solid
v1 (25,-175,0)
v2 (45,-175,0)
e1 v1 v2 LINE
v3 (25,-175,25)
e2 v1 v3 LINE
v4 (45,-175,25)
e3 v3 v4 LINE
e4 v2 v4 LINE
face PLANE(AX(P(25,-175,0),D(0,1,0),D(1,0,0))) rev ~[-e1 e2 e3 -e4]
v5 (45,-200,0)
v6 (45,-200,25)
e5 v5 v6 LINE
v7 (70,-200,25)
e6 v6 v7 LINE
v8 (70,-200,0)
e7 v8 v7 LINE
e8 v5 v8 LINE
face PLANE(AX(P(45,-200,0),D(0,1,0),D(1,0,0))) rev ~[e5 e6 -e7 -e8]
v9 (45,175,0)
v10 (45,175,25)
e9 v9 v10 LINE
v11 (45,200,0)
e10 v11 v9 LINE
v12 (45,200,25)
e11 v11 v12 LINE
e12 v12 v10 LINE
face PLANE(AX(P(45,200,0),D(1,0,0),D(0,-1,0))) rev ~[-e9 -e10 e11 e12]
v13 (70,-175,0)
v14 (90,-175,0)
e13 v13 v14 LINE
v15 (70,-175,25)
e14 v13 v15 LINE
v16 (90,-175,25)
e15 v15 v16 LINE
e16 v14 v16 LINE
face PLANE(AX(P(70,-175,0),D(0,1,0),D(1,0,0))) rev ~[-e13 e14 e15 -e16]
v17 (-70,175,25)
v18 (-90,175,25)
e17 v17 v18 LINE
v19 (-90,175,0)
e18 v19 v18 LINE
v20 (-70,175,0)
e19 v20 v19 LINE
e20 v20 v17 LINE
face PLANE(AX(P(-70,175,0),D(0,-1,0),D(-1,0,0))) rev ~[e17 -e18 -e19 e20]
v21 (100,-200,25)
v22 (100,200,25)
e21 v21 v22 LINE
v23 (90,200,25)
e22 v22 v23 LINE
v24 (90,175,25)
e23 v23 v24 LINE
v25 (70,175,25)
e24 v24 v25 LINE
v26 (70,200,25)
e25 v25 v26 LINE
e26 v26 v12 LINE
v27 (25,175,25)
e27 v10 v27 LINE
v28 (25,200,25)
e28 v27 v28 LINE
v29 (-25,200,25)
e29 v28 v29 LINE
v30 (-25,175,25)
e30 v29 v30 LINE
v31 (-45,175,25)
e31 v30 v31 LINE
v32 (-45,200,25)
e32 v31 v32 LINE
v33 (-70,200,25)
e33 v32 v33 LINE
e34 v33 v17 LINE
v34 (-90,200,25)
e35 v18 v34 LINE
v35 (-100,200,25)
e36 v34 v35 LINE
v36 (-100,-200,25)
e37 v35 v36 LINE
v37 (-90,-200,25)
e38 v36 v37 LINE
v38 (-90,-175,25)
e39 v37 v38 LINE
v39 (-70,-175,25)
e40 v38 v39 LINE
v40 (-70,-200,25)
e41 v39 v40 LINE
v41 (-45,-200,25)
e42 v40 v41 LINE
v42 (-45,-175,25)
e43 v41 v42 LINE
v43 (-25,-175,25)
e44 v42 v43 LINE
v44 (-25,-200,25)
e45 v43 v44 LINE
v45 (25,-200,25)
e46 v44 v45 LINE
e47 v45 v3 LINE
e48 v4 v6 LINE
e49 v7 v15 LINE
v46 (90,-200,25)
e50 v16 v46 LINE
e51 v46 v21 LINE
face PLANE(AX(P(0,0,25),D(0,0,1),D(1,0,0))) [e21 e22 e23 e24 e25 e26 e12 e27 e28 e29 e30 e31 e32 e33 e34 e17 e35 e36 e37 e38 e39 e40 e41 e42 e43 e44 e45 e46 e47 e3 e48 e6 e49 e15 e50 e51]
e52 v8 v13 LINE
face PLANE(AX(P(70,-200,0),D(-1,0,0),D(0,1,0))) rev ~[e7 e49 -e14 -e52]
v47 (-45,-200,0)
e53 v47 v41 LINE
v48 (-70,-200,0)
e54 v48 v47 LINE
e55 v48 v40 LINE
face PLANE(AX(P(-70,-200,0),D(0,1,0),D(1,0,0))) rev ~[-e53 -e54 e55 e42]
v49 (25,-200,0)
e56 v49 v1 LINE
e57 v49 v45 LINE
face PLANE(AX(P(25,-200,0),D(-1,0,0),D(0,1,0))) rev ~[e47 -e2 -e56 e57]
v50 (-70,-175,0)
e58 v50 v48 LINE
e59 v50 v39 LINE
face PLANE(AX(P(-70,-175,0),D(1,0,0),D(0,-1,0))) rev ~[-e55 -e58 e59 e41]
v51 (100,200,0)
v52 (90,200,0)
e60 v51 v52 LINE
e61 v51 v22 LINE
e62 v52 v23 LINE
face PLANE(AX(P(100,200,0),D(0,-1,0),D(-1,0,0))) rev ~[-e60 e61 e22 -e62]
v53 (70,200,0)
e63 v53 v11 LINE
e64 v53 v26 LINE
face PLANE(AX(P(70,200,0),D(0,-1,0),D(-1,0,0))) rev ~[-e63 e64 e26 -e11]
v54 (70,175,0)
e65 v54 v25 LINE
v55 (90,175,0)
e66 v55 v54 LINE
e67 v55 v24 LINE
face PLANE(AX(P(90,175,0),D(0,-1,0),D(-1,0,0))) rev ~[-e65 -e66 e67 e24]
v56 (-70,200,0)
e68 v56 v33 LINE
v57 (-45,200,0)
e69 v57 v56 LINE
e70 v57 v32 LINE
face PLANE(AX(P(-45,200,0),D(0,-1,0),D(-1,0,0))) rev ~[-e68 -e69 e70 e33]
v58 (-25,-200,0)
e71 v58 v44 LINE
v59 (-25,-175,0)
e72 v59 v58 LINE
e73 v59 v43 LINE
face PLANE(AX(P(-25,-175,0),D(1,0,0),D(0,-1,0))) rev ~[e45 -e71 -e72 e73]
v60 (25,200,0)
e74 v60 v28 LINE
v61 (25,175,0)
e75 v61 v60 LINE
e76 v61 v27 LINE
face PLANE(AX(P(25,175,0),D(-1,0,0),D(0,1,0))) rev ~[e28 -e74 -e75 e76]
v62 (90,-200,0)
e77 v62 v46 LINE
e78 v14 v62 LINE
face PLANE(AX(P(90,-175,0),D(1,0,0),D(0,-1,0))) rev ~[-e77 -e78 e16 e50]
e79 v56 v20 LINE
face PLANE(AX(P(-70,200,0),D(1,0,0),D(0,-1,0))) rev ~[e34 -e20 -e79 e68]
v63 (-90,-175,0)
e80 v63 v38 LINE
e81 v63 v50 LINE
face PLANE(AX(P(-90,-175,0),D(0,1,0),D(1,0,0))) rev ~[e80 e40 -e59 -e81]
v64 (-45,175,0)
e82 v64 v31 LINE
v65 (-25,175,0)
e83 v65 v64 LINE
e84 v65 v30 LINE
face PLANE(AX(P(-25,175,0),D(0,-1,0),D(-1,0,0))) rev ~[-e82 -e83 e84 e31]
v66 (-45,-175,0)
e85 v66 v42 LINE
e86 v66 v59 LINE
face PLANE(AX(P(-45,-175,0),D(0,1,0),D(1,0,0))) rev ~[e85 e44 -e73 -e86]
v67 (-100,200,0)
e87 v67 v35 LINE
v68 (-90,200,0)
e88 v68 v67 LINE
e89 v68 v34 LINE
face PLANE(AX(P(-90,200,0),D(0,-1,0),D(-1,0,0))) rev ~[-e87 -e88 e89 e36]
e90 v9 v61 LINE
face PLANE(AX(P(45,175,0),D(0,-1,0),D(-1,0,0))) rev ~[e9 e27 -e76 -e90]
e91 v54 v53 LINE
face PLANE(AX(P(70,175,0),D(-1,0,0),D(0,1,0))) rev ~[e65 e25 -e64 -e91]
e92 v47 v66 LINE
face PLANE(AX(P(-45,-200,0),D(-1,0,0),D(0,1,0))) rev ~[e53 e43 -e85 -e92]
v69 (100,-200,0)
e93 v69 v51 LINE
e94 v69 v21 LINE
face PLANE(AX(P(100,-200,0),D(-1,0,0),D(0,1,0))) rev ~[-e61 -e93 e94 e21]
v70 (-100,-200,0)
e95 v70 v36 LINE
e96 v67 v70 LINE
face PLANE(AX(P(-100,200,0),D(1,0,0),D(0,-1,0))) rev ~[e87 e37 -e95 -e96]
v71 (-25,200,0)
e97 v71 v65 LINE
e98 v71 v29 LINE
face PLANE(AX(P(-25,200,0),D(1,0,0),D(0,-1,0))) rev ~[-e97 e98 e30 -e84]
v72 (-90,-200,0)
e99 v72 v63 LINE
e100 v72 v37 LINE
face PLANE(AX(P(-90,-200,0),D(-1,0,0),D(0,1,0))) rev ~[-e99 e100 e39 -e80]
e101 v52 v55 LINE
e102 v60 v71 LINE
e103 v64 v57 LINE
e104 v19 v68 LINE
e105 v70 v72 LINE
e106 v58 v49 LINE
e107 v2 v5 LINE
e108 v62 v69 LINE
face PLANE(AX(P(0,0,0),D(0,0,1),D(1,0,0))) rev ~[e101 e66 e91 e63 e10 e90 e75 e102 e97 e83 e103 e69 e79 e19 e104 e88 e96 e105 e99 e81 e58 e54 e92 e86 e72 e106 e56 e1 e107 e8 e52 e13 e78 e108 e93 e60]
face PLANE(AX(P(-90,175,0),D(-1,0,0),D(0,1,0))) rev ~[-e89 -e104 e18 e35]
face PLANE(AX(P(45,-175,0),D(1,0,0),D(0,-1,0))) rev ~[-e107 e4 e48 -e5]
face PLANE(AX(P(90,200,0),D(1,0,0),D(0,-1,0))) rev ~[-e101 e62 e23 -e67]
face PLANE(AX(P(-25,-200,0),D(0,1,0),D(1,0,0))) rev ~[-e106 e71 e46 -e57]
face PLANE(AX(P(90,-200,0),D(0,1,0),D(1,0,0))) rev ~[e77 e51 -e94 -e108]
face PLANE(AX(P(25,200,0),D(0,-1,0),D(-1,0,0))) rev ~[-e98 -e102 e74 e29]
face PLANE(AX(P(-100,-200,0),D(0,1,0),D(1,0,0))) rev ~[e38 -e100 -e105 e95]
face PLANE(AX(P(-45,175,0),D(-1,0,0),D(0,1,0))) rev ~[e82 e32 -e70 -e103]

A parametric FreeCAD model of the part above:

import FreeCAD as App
import Part
import Sketcher

V = App.Vector
Q = App.Units.Quantity

doc = App.newDocument("Part")
params = doc.addObject("Spreadsheet::Sheet", "Params")
for row, (alias, value) in enumerate([
    ("sketch1_width", "10 mm"),
    ("sketch1_width2", "20 mm"),
    ("sketch1_width3", "25 mm"),
    ("sketch1_width4", "50 mm"),
    ("sketch1_height", "400 mm"),
    ("pad1_length", "25 mm"),
], start=1):
    params.set(f"A{row}", alias)
    params.set(f"B{row}", "=" + value)
    params.setAlias(f"B{row}", alias)

body = doc.addObject("PartDesign::Body", "Body")

# Sketch on XY plane
sketch1 = body.newObject("Sketcher::SketchObject", "Sketch")
sketch1.AttachmentSupport = (doc.getObject("XY_Plane"), [""])
sketch1.MapMode = "FlatFace"
sketch1.addGeometry([
    Part.LineSegment(V(90, -200, 0), V(100, -200, 0)),  # 0
    Part.LineSegment(V(100, -200, 0), V(100, 200, 0)),  # 1
    Part.LineSegment(V(100, 200, 0), V(90, 200, 0)),  # 2
    Part.LineSegment(V(90, 200, 0), V(90, 175, 0)),  # 3
    Part.LineSegment(V(90, 175, 0), V(70, 175, 0)),  # 4
    Part.LineSegment(V(70, 175, 0), V(70, 200, 0)),  # 5
    Part.LineSegment(V(70, 200, 0), V(45, 200, 0)),  # 6
    Part.LineSegment(V(45, 200, 0), V(45, 175, 0)),  # 7
    Part.LineSegment(V(45, 175, 0), V(25, 175, 0)),  # 8
    Part.LineSegment(V(25, 175, 0), V(25, 200, 0)),  # 9
    Part.LineSegment(V(25, 200, 0), V(-25, 200, 0)),  # 10
    Part.LineSegment(V(-25, 200, 0), V(-25, 175, 0)),  # 11
    Part.LineSegment(V(-25, 175, 0), V(-45, 175, 0)),  # 12
    Part.LineSegment(V(-45, 175, 0), V(-45, 200, 0)),  # 13
    Part.LineSegment(V(-45, 200, 0), V(-70, 200, 0)),  # 14
    Part.LineSegment(V(-70, 200, 0), V(-70, 175, 0)),  # 15
    Part.LineSegment(V(-70, 175, 0), V(-90, 175, 0)),  # 16
    Part.LineSegment(V(-90, 175, 0), V(-90, 200, 0)),  # 17
    Part.LineSegment(V(-90, 200, 0), V(-100, 200, 0)),  # 18
    Part.LineSegment(V(-100, 200, 0), V(-100, -200, 0)),  # 19
    Part.LineSegment(V(-100, -200, 0), V(-90, -200, 0)),  # 20
    Part.LineSegment(V(-90, -200, 0), V(-90, -175, 0)),  # 21
    Part.LineSegment(V(-90, -175, 0), V(-70, -175, 0)),  # 22
    Part.LineSegment(V(-70, -175, 0), V(-70, -200, 0)),  # 23
    Part.LineSegment(V(-70, -200, 0), V(-45, -200, 0)),  # 24
    Part.LineSegment(V(-45, -200, 0), V(-45, -175, 0)),  # 25
    Part.LineSegment(V(-45, -175, 0), V(-25, -175, 0)),  # 26
    Part.LineSegment(V(-25, -175, 0), V(-25, -200, 0)),  # 27
    Part.LineSegment(V(-25, -200, 0), V(25, -200, 0)),  # 28
    Part.LineSegment(V(25, -200, 0), V(25, -175, 0)),  # 29
    Part.LineSegment(V(25, -175, 0), V(45, -175, 0)),  # 30
    Part.LineSegment(V(45, -175, 0), V(45, -200, 0)),  # 31
    Part.LineSegment(V(45, -200, 0), V(70, -200, 0)),  # 32
    Part.LineSegment(V(70, -200, 0), V(70, -175, 0)),  # 33
    Part.LineSegment(V(70, -175, 0), V(90, -175, 0)),  # 34
    Part.LineSegment(V(90, -175, 0), V(90, -200, 0)),  # 35
], False)
sketch1.addConstraint([
    Sketcher.Constraint("Coincident", 0, 2, 1, 1),
    Sketcher.Constraint("Coincident", 1, 2, 2, 1),
    Sketcher.Constraint("Coincident", 2, 2, 3, 1),
    Sketcher.Constraint("Coincident", 3, 2, 4, 1),
    Sketcher.Constraint("Coincident", 4, 2, 5, 1),
    Sketcher.Constraint("Coincident", 5, 2, 6, 1),
    Sketcher.Constraint("Coincident", 6, 2, 7, 1),
    Sketcher.Constraint("Coincident", 7, 2, 8, 1),
    Sketcher.Constraint("Coincident", 8, 2, 9, 1),
    Sketcher.Constraint("Coincident", 9, 2, 10, 1),
    Sketcher.Constraint("Coincident", 10, 2, 11, 1),
    Sketcher.Constraint("Coincident", 11, 2, 12, 1),
    Sketcher.Constraint("Coincident", 12, 2, 13, 1),
    Sketcher.Constraint("Coincident", 13, 2, 14, 1),
    Sketcher.Constraint("Coincident", 14, 2, 15, 1),
    Sketcher.Constraint("Coincident", 15, 2, 16, 1),
    Sketcher.Constraint("Coincident", 16, 2, 17, 1),
    Sketcher.Constraint("Coincident", 17, 2, 18, 1),
    Sketcher.Constraint("Coincident", 18, 2, 19, 1),
    Sketcher.Constraint("Coincident", 19, 2, 20, 1),
    Sketcher.Constraint("Coincident", 20, 2, 21, 1),
    Sketcher.Constraint("Coincident", 21, 2, 22, 1),
    Sketcher.Constraint("Coincident", 22, 2, 23, 1),
    Sketcher.Constraint("Coincident", 23, 2, 24, 1),
    Sketcher.Constraint("Coincident", 24, 2, 25, 1),
    Sketcher.Constraint("Coincident", 25, 2, 26, 1),
    Sketcher.Constraint("Coincident", 26, 2, 27, 1),
    Sketcher.Constraint("Coincident", 27, 2, 28, 1),
    Sketcher.Constraint("Coincident", 28, 2, 29, 1),
    Sketcher.Constraint("Coincident", 29, 2, 30, 1),
    Sketcher.Constraint("Coincident", 30, 2, 31, 1),
    Sketcher.Constraint("Coincident", 31, 2, 32, 1),
    Sketcher.Constraint("Coincident", 32, 2, 33, 1),
    Sketcher.Constraint("Coincident", 33, 2, 34, 1),
    Sketcher.Constraint("Coincident", 34, 2, 35, 1),
    Sketcher.Constraint("Coincident", 35, 2, 0, 1),
    Sketcher.Constraint("Horizontal", 0),
    Sketcher.Constraint("Vertical", 1),
    Sketcher.Constraint("Horizontal", 2),
    Sketcher.Constraint("Vertical", 3),
    Sketcher.Constraint("Horizontal", 4),
    Sketcher.Constraint("Vertical", 5),
    Sketcher.Constraint("Horizontal", 6),
    Sketcher.Constraint("Vertical", 7),
    Sketcher.Constraint("Horizontal", 8),
    Sketcher.Constraint("Vertical", 9),
    Sketcher.Constraint("Horizontal", 10),
    Sketcher.Constraint("Vertical", 11),
    Sketcher.Constraint("Horizontal", 12),
    Sketcher.Constraint("Vertical", 13),
    Sketcher.Constraint("Horizontal", 14),
    Sketcher.Constraint("Vertical", 15),
    Sketcher.Constraint("Horizontal", 16),
    Sketcher.Constraint("Vertical", 17),
    Sketcher.Constraint("Horizontal", 18),
    Sketcher.Constraint("Vertical", 19),
    Sketcher.Constraint("Horizontal", 20),
    Sketcher.Constraint("Vertical", 21),
    Sketcher.Constraint("Horizontal", 22),
    Sketcher.Constraint("Vertical", 23),
    Sketcher.Constraint("Horizontal", 24),
    Sketcher.Constraint("Vertical", 25),
    Sketcher.Constraint("Horizontal", 26),
    Sketcher.Constraint("Vertical", 27),
    Sketcher.Constraint("Horizontal", 28),
    Sketcher.Constraint("Vertical", 29),
    Sketcher.Constraint("Horizontal", 30),
    Sketcher.Constraint("Vertical", 31),
    Sketcher.Constraint("Horizontal", 32),
    Sketcher.Constraint("Vertical", 33),
    Sketcher.Constraint("Horizontal", 34),
    Sketcher.Constraint("Vertical", 35),
    Sketcher.Constraint("Symmetric", 0, 2, 18, 2, -1, 1),
    Sketcher.Constraint("Symmetric", 2, 2, 20, 2, -1, 1),
    Sketcher.Constraint("Symmetric", 4, 2, 22, 2, -1, 1),
    Sketcher.Constraint("Symmetric", 6, 2, 24, 2, -1, 1),
    Sketcher.Constraint("Symmetric", 8, 2, 26, 2, -1, 1),
    Sketcher.Constraint("Symmetric", 10, 2, 28, 2, -1, 1),
    Sketcher.Constraint("Symmetric", 12, 2, 30, 2, -1, 1),
    Sketcher.Constraint("Symmetric", 14, 2, 32, 2, -1, 1),
    Sketcher.Constraint("Symmetric", 16, 2, 34, 2, -1, 1),
    Sketcher.Constraint("Symmetric", 8, 2, 11, 2, -2),
    Sketcher.Constraint("Symmetric", 6, 2, 13, 2, -2),
    Sketcher.Constraint("Symmetric", 4, 2, 15, 2, -2),
    Sketcher.Constraint("Symmetric", 2, 2, 17, 2, -2),
    Sketcher.Constraint("Horizontal", 2, 2, 5, 2),
    Sketcher.Constraint("Horizontal", 4, 2, 7, 2),
    Sketcher.Constraint("Horizontal", 6, 2, 9, 2),
    Sketcher.Constraint("Equal", 4, 8),
    Sketcher.Constraint("Equal", 32, 3),
    Sketcher.Constraint("DistanceX", 0, 1, 0, 2, Q("10 mm")),
    Sketcher.Constraint("DistanceX", 4, 2, 4, 1, Q("20 mm")),
    Sketcher.Constraint("DistanceX", 6, 2, 6, 1, Q("25 mm")),
    Sketcher.Constraint("DistanceX", 10, 2, 10, 1, Q("50 mm")),
    Sketcher.Constraint("DistanceY", 1, 1, 1, 2, Q("400 mm")),
])
sketch1.setExpression("Constraints[90]", "Params.sketch1_width")
sketch1.setExpression("Constraints[91]", "Params.sketch1_width2")
sketch1.setExpression("Constraints[92]", "Params.sketch1_width3")
sketch1.setExpression("Constraints[93]", "Params.sketch1_width4")
sketch1.setExpression("Constraints[94]", "Params.sketch1_height")
pad1 = body.newObject("PartDesign::Pad", "Pad")
pad1.Profile = sketch1
pad1.setExpression("Length", "Params.pad1_length")

doc.recompute()
